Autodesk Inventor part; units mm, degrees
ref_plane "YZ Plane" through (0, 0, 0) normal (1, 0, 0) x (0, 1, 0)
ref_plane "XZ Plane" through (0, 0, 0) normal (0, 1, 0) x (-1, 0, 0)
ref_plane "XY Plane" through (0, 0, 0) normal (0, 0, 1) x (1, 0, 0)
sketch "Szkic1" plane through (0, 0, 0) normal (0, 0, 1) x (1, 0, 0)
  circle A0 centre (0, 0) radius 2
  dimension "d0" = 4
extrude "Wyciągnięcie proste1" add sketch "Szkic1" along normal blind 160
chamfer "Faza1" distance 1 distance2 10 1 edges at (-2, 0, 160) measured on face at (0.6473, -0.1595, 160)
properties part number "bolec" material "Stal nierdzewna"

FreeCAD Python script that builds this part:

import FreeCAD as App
import Part
import Sketcher


def edges_at(feature, points):
    """Names of the edges that pass closest to the given points."""
    edges = feature.Shape.Edges
    near = lambda p: min(range(len(edges)), key=lambda i: edges[i].distToShape(Part.Vertex(*p))[0])
    return sorted({f"Edge{near(p) + 1}" for p in points})

doc = App.newDocument("Part")
body = doc.addObject("PartDesign::Body", "Body")

# Sketch on XY plane
sketch1 = doc.addObject("Sketcher::SketchObject", "Sketch")
body.addObject(sketch1)
sketch1.AttachmentSupport = (doc.XY_Plane, [""])
sketch1.MapMode = "FlatFace"
sketch1.addGeometry(Part.Circle(App.Vector(0, 0, 0), App.Vector(0, 0, 1), 2), False)
sketch1.addConstraint([
    Sketcher.Constraint("Coincident", 0, 3, -1, 1),
    Sketcher.Constraint("Diameter", 0, 4.0),
])
pad1 = doc.addObject("PartDesign::Pad", "Pad")
body.addObject(pad1)
pad1.Profile = sketch1
pad1.Length = 160
doc.recompute()

chamfer = doc.addObject("PartDesign::Chamfer", "Chamfer")
body.addObject(chamfer)
chamfer.Base = (pad1, edges_at(pad1, [(-2, 0, 160)]))
chamfer.ChamferType = "Two distances"
chamfer.Size = 1
chamfer.Size2 = 10
chamfer.FlipDirection = True

doc.recompute()
